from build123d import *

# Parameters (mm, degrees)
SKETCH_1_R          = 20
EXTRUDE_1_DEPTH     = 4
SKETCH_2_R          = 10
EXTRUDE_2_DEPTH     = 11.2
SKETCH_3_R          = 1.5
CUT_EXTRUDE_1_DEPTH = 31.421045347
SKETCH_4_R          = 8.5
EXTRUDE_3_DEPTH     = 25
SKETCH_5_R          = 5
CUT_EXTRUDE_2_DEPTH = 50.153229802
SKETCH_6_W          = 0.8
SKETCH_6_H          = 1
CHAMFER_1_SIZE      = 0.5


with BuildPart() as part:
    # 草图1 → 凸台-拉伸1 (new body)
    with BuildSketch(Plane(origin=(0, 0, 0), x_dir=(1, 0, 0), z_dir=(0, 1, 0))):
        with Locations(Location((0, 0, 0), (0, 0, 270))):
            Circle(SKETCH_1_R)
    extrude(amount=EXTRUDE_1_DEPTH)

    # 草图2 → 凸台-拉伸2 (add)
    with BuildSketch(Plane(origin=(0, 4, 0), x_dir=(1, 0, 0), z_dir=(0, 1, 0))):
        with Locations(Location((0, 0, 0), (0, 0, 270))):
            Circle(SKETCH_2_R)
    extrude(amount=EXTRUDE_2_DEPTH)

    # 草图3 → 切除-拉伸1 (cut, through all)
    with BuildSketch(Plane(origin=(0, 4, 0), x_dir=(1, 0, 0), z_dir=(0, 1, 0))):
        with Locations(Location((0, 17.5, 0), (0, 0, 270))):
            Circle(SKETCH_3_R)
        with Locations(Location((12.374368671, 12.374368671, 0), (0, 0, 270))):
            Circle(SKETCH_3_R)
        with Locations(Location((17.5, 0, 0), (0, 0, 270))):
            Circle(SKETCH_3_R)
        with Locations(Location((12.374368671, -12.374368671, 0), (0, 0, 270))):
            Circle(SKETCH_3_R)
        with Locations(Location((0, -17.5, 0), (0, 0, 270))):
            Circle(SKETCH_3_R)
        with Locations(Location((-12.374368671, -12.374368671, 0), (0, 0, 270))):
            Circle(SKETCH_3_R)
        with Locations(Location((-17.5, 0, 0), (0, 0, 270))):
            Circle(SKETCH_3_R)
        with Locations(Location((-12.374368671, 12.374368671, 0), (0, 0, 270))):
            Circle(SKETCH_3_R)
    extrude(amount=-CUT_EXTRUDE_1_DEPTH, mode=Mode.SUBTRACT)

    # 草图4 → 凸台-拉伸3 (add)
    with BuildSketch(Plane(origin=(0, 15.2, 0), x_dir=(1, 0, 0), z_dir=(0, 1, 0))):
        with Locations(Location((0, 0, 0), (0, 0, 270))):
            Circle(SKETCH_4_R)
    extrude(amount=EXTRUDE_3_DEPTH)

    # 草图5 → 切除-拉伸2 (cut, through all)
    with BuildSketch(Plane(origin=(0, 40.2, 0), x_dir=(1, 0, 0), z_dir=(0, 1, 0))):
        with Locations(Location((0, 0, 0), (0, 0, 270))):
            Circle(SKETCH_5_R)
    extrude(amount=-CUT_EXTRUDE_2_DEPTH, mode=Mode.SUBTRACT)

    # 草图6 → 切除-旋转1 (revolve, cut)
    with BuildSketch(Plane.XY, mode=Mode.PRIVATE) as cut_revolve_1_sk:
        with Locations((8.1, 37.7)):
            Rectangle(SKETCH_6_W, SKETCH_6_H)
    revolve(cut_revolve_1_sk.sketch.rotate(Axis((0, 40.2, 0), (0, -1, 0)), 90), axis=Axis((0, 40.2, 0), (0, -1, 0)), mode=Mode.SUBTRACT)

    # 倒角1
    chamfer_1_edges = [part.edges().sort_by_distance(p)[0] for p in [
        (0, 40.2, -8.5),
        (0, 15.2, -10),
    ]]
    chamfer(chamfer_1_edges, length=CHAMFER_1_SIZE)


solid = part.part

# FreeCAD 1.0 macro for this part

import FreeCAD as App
import Part
import Sketcher
from FreeCAD import Vector


def edges_at(feature, points):
    """Names of the edges that pass closest to the given points."""
    edges = feature.Shape.Edges
    near = lambda p: min(range(len(edges)), key=lambda i: edges[i].distToShape(Part.Vertex(*p))[0])
    return sorted({f"Edge{near(p) + 1}" for p in points})


def add_polygon(sketch, points):
    """Adds a closed chain of lines whose ends are joined by coincident constraints."""
    first, n = sketch.GeometryCount, len(points)
    for a, b in zip(points, points[1:] + points[:1]):
        sketch.addGeometry(Part.LineSegment(App.Vector(*a, 0), App.Vector(*b, 0)), False)
    for i in range(n):
        sketch.addConstraint(Sketcher.Constraint("Coincident", first + i, 2, first + (i + 1) % n, 1))

doc = App.newDocument("Part")
params = doc.addObject("Spreadsheet::Sheet", "Params")
for row, (alias, value) in enumerate([
    ("sketch1_diameter", "40 mm"),
    ("pad1_length", "4 mm"),
    ("sketch2_diameter", "20 mm"),
    ("pad2_length", "11.2 mm"),
    ("sketch3_diameter", "3 mm"),
    ("sketch4_diameter", "17 mm"),
    ("pad3_length", "25 mm"),
    ("sketch5_diameter", "10 mm"),
    ("sketch6_height", "1 mm"),
    ("sketch6_width", "0.8 mm"),
    ("groove_angle", "360 deg"),
    ("chamfer_size", "0.5 mm"),
], start=1):
    params.set(f"A{row}", alias)
    params.set(f"B{row}", "=" + value)
    params.setAlias(f"B{row}", alias)

body = doc.addObject("PartDesign::Body", "Body")

# Sketch on XZ plane
sketch1 = doc.addObject("Sketcher::SketchObject", "Sketch")
body.addObject(sketch1)
sketch1.AttachmentSupport = (doc.XZ_Plane, [""])
sketch1.MapMode = "FlatFace"
sketch1.addGeometry(Part.Circle(Vector(0, 0, 0), Vector(0, 0, 1), 20), False)
sketch1.addConstraint([
    Sketcher.Constraint("Coincident", 0, 3, -1, 1),
    Sketcher.Constraint("Diameter", 0, 40.0),
])
sketch1.setExpression("Constraints[1]", "Params.sketch1_diameter")
pad1 = doc.addObject("PartDesign::Pad", "Pad")
body.addObject(pad1)
pad1.Profile = sketch1
pad1.setExpression("Length", "Params.pad1_length")
pad1.Reversed = True

# Sketch on XZ plane
sketch2 = doc.addObject("Sketcher::SketchObject", "Sketch001")
body.addObject(sketch2)
sketch2.AttachmentSupport = (doc.XZ_Plane, [""])
sketch2.MapMode = "FlatFace"
sketch2.AttachmentOffset = App.Placement(Vector(0, 0, -4), App.Rotation())
sketch2.addGeometry(Part.Circle(Vector(0, 0, 0), Vector(0, 0, 1), 10), False)
sketch2.addConstraint([
    Sketcher.Constraint("Coincident", 0, 3, -1, 1),
    Sketcher.Constraint("Diameter", 0, 20.0),
])
sketch2.setExpression("Constraints[1]", "Params.sketch2_diameter")
pad2 = doc.addObject("PartDesign::Pad", "Pad001")
body.addObject(pad2)
pad2.Profile = sketch2
pad2.setExpression("Length", "Params.pad2_length")
pad2.Reversed = True

# Sketch on XZ plane
sketch3 = doc.addObject("Sketcher::SketchObject", "Sketch002")
body.addObject(sketch3)
sketch3.AttachmentSupport = (doc.XZ_Plane, [""])
sketch3.MapMode = "FlatFace"
sketch3.AttachmentOffset = App.Placement(Vector(0, 0, -4), App.Rotation())
sketch3.addGeometry([
    Part.Circle(Vector(0, -17.5, 0), Vector(0, 0, 1), 1.5),  # 0
    Part.Circle(Vector(12.4, -12.4, 0), Vector(0, 0, 1), 1.5),  # 1
    Part.Circle(Vector(17.5, 0, 0), Vector(0, 0, 1), 1.5),  # 2
    Part.Circle(Vector(12.4, 12.4, 0), Vector(0, 0, 1), 1.5),  # 3
    Part.Circle(Vector(0, 17.5, 0), Vector(0, 0, 1), 1.5),  # 4
    Part.Circle(Vector(-12.4, 12.4, 0), Vector(0, 0, 1), 1.5),  # 5
    Part.Circle(Vector(-17.5, 0, 0), Vector(0, 0, 1), 1.5),  # 6
    Part.Circle(Vector(-12.4, -12.4, 0), Vector(0, 0, 1), 1.5),  # 7
], False)
sketch3.addConstraint([
    Sketcher.Constraint("Equal", 0, 1),
    Sketcher.Constraint("Equal", 1, 2),
    Sketcher.Constraint("Equal", 2, 3),
    Sketcher.Constraint("Equal", 3, 4),
    Sketcher.Constraint("Equal", 4, 5),
    Sketcher.Constraint("Equal", 5, 6),
    Sketcher.Constraint("Equal", 6, 7),
    Sketcher.Constraint("Symmetric", 0, 3, 4, 3, -1, 1),
    Sketcher.Constraint("Symmetric", 1, 3, 5, 3, -1, 1),
    Sketcher.Constraint("Symmetric", 2, 3, 6, 3, -1, 1),
    Sketcher.Constraint("Symmetric", 3, 3, 7, 3, -1, 1),
    Sketcher.Constraint("Symmetric", 3, 3, 5, 3, -2),
    Sketcher.Constraint("PointOnObject", 0, 3, -2),
    Sketcher.Constraint("PointOnObject", 2, 3, -1),
    Sketcher.Constraint("Diameter", 0, 3.0),
    Sketcher.Constraint("DistanceY", 0, 3, 4, 3, 35.0),
    Sketcher.Constraint("DistanceX", -1, 1, 2, 3, 17.5),
    Sketcher.Constraint("DistanceX", -1, 1, 1, 3, 12.374369),
    Sketcher.Constraint("DistanceY", 1, 3, -1, 1, 12.374369),
])
sketch3.setExpression("Constraints[14]", "Params.sketch3_diameter")
pocket1 = doc.addObject("PartDesign::Pocket", "Pocket")
body.addObject(pocket1)
pocket1.Profile = sketch3
pocket1.Type = "ThroughAll"
pocket1.Reversed = True

# Sketch on XZ plane
sketch4 = doc.addObject("Sketcher::SketchObject", "Sketch003")
body.addObject(sketch4)
sketch4.AttachmentSupport = (doc.XZ_Plane, [""])
sketch4.MapMode = "FlatFace"
sketch4.AttachmentOffset = App.Placement(Vector(0, 0, -15.2), App.Rotation())
sketch4.addGeometry(Part.Circle(Vector(0, 0, 0), Vector(0, 0, 1), 8), False)
sketch4.addConstraint([
    Sketcher.Constraint("Coincident", 0, 3, -1, 1),
    Sketcher.Constraint("Diameter", 0, 17.0),
])
sketch4.setExpression("Constraints[1]", "Params.sketch4_diameter")
pad3 = doc.addObject("PartDesign::Pad", "Pad002")
body.addObject(pad3)
pad3.Profile = sketch4
pad3.setExpression("Length", "Params.pad3_length")
pad3.Reversed = True

# Sketch on XZ plane
sketch5 = doc.addObject("Sketcher::SketchObject", "Sketch004")
body.addObject(sketch5)
sketch5.AttachmentSupport = (doc.XZ_Plane, [""])
sketch5.MapMode = "FlatFace"
sketch5.AttachmentOffset = App.Placement(Vector(0, 0, -40.2), App.Rotation())
sketch5.addGeometry(Part.Circle(Vector(0, 0, 0), Vector(0, 0, 1), 5), False)
sketch5.addConstraint([
    Sketcher.Constraint("Coincident", 0, 3, -1, 1),
    Sketcher.Constraint("Diameter", 0, 10.0),
])
sketch5.setExpression("Constraints[1]", "Params.sketch5_diameter")
pocket2 = doc.addObject("PartDesign::Pocket", "Pocket001")
body.addObject(pocket2)
pocket2.Profile = sketch5
pocket2.Type = "ThroughAll"
pocket2.Reversed = True

# Sketch on XY plane
sketch6 = doc.addObject("Sketcher::SketchObject", "Sketch005")
body.addObject(sketch6)
sketch6.AttachmentSupport = (doc.XY_Plane, [""])
sketch6.MapMode = "FlatFace"
add_polygon(sketch6, [(7.7, 38.2), (7.7, 37.2), (8.5, 37.2), (8.5, 38.2)])  # lines 0-3
sketch6.addConstraint([
    Sketcher.Constraint("Vertical", 0),
    Sketcher.Constraint("Horizontal", 1),
    Sketcher.Constraint("Vertical", 2),
    Sketcher.Constraint("Horizontal", 3),
    Sketcher.Constraint("DistanceY", 0, 2, 0, 1, 1.0),
    Sketcher.Constraint("DistanceX", 1, 1, 1, 2, 0.8),
    Sketcher.Constraint("DistanceX", -1, 1, 0, 2, 7.7),
    Sketcher.Constraint("DistanceY", -1, 1, 0, 2, 37.2),
])
sketch6.setExpression("Constraints[8]", "Params.sketch6_height")
sketch6.setExpression("Constraints[9]", "Params.sketch6_width")
groove = doc.addObject("PartDesign::Groove", "Groove")
body.addObject(groove)
groove.Profile = sketch6
groove.ReferenceAxis = (sketch6, ["V_Axis"])
groove.setExpression("Angle", "Params.groove_angle")
doc.recompute()

chamfer = doc.addObject("PartDesign::Chamfer", "Chamfer")
body.addObject(chamfer)
chamfer.Base = (groove, edges_at(groove, [(0, 40.2, -8.5), (0, 15.2, -10)]))
chamfer.setExpression("Size", "Params.chamfer_size")

doc.recompute()
